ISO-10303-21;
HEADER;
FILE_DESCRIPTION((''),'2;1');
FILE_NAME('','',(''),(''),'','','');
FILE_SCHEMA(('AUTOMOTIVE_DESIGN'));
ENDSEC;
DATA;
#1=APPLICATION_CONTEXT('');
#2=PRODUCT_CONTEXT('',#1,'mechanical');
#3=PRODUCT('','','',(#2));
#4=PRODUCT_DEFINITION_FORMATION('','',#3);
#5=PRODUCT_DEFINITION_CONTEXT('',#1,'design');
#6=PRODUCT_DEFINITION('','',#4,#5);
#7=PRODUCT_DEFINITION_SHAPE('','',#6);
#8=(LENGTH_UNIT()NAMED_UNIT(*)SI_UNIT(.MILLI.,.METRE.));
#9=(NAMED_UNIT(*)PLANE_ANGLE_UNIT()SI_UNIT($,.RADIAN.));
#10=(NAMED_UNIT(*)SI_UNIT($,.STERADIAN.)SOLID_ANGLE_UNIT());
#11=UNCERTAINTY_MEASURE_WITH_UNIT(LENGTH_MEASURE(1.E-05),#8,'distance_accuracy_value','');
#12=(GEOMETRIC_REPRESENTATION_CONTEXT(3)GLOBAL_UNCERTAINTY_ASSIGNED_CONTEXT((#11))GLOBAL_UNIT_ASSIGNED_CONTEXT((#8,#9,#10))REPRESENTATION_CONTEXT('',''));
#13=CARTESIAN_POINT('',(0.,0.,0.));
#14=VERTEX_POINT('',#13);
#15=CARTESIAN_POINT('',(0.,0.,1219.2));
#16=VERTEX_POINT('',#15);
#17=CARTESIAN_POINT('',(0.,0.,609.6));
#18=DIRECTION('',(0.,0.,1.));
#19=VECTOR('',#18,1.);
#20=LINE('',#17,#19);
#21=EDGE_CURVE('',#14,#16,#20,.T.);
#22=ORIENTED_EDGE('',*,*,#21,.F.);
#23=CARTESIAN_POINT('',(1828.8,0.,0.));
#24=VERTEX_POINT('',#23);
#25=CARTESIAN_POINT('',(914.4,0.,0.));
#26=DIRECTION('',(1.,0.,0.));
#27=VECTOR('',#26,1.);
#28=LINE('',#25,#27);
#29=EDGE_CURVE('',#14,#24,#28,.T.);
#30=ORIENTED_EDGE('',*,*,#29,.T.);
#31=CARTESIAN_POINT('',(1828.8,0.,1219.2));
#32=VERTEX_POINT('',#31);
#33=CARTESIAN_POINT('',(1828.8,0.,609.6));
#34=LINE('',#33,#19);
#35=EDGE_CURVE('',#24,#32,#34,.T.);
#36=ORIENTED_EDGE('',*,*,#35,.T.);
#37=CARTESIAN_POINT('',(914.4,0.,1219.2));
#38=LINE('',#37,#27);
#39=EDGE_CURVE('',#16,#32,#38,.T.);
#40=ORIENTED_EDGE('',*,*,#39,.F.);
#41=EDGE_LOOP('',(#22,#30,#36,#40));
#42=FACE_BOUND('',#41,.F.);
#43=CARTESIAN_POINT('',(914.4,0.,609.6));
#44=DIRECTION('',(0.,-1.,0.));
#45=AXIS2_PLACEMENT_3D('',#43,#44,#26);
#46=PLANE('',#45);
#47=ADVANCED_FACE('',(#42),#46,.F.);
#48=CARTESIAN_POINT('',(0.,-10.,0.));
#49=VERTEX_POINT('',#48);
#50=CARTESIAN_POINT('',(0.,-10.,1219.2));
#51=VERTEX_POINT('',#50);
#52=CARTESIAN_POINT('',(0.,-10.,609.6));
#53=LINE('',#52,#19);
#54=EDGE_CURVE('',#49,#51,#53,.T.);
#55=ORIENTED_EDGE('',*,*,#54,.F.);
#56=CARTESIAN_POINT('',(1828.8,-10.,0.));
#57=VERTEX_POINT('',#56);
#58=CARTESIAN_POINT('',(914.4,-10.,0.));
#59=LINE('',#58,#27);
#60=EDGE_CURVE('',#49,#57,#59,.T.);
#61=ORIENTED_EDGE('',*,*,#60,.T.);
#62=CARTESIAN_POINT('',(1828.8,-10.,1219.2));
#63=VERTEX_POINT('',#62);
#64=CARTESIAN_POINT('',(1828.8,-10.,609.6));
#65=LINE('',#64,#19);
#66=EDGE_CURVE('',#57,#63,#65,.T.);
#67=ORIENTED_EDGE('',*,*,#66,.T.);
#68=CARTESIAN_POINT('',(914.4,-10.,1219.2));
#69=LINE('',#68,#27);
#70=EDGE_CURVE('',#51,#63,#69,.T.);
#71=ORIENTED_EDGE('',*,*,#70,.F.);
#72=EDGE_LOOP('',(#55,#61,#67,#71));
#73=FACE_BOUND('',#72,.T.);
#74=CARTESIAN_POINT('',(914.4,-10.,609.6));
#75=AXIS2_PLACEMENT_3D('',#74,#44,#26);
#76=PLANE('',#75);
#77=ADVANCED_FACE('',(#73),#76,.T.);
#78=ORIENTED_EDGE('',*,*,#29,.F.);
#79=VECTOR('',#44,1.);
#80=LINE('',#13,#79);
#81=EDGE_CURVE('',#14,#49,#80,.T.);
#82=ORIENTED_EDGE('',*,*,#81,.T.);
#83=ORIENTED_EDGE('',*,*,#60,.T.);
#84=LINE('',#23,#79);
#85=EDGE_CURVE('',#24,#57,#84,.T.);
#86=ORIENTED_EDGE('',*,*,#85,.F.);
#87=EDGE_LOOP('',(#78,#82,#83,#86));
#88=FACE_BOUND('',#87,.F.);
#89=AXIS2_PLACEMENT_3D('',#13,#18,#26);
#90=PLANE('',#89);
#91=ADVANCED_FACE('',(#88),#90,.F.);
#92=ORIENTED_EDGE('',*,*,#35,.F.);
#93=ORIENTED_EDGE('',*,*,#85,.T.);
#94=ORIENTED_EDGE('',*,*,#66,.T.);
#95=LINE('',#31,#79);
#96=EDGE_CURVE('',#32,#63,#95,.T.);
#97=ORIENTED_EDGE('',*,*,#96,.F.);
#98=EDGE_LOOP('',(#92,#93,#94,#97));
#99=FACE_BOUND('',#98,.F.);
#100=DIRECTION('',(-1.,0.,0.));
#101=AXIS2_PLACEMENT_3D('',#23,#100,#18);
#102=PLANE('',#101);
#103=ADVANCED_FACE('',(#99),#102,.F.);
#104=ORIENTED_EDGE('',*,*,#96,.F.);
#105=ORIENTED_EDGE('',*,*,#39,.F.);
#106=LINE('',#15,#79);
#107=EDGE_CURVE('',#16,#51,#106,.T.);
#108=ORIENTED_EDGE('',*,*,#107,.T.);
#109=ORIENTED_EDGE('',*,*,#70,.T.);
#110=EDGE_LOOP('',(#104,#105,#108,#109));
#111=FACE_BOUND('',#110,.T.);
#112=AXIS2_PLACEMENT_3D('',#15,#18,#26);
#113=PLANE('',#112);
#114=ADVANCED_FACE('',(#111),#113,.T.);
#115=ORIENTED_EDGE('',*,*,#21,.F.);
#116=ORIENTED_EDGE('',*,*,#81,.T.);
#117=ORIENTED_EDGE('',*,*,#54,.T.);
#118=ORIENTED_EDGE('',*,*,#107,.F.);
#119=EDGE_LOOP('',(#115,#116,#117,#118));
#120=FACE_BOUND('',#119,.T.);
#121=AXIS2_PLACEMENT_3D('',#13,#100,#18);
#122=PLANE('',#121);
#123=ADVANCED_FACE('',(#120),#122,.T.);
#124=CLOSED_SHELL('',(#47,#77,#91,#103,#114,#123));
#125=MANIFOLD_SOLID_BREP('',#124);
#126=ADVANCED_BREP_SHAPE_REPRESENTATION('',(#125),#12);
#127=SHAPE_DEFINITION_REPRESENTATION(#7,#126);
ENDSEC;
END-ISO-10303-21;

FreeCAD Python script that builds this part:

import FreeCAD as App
import Part
import Sketcher
Q = App.Units.Quantity

doc = App.newDocument("Part")
params = doc.addObject("Spreadsheet::Sheet", "Params")
for row, (alias, value) in enumerate([
    ("sketch1_width", "72 in"),
    ("sketch1_height", "48 in"),
    ("pad1_length", "10 mm"),
], start=1):
    params.set(f"A{row}", alias)
    params.set(f"B{row}", "=" + value)
    params.setAlias(f"B{row}", alias)

body = doc.addObject("PartDesign::Body", "Body")

# Sketch on XZ plane
sketch1 = body.newObject("Sketcher::SketchObject", "Sketch")
sketch1.AttachmentSupport = (doc.getObject("XZ_Plane"), [""])
sketch1.MapMode = "FlatFace"
sketch1.addGeometry([
    Part.LineSegment(App.Vector(0, 1219, 0), App.Vector(0, 0, 0)),
    Part.LineSegment(App.Vector(0, 0, 0), App.Vector(1829, 0, 0)),
    Part.LineSegment(App.Vector(1829, 0, 0), App.Vector(1829, 1219, 0)),
    Part.LineSegment(App.Vector(1829, 1219, 0), App.Vector(0, 1219, 0)),
], False)
sketch1.addConstraint([
    Sketcher.Constraint("Coincident", 0, 2, 1, 1),
    Sketcher.Constraint("Coincident", 1, 2, 2, 1),
    Sketcher.Constraint("Coincident", 2, 2, 3, 1),
    Sketcher.Constraint("Coincident", 3, 2, 0, 1),
    Sketcher.Constraint("Vertical", 0),
    Sketcher.Constraint("Horizontal", 1),
    Sketcher.Constraint("Vertical", 2),
    Sketcher.Constraint("Horizontal", 3),
    Sketcher.Constraint("Coincident", 0, 2, -1, 1),
    Sketcher.Constraint("DistanceX", 1, 1, 1, 2, Q("72 in")),
    Sketcher.Constraint("DistanceY", 0, 2, 0, 1, Q("48 in")),
])
sketch1.setExpression("Constraints[9]", "Params.sketch1_width")
sketch1.setExpression("Constraints[10]", "Params.sketch1_height")
pad1 = body.newObject("PartDesign::Pad", "Pad")
pad1.Profile = sketch1
pad1.setExpression("Length", "Params.pad1_length")

doc.recompute()
